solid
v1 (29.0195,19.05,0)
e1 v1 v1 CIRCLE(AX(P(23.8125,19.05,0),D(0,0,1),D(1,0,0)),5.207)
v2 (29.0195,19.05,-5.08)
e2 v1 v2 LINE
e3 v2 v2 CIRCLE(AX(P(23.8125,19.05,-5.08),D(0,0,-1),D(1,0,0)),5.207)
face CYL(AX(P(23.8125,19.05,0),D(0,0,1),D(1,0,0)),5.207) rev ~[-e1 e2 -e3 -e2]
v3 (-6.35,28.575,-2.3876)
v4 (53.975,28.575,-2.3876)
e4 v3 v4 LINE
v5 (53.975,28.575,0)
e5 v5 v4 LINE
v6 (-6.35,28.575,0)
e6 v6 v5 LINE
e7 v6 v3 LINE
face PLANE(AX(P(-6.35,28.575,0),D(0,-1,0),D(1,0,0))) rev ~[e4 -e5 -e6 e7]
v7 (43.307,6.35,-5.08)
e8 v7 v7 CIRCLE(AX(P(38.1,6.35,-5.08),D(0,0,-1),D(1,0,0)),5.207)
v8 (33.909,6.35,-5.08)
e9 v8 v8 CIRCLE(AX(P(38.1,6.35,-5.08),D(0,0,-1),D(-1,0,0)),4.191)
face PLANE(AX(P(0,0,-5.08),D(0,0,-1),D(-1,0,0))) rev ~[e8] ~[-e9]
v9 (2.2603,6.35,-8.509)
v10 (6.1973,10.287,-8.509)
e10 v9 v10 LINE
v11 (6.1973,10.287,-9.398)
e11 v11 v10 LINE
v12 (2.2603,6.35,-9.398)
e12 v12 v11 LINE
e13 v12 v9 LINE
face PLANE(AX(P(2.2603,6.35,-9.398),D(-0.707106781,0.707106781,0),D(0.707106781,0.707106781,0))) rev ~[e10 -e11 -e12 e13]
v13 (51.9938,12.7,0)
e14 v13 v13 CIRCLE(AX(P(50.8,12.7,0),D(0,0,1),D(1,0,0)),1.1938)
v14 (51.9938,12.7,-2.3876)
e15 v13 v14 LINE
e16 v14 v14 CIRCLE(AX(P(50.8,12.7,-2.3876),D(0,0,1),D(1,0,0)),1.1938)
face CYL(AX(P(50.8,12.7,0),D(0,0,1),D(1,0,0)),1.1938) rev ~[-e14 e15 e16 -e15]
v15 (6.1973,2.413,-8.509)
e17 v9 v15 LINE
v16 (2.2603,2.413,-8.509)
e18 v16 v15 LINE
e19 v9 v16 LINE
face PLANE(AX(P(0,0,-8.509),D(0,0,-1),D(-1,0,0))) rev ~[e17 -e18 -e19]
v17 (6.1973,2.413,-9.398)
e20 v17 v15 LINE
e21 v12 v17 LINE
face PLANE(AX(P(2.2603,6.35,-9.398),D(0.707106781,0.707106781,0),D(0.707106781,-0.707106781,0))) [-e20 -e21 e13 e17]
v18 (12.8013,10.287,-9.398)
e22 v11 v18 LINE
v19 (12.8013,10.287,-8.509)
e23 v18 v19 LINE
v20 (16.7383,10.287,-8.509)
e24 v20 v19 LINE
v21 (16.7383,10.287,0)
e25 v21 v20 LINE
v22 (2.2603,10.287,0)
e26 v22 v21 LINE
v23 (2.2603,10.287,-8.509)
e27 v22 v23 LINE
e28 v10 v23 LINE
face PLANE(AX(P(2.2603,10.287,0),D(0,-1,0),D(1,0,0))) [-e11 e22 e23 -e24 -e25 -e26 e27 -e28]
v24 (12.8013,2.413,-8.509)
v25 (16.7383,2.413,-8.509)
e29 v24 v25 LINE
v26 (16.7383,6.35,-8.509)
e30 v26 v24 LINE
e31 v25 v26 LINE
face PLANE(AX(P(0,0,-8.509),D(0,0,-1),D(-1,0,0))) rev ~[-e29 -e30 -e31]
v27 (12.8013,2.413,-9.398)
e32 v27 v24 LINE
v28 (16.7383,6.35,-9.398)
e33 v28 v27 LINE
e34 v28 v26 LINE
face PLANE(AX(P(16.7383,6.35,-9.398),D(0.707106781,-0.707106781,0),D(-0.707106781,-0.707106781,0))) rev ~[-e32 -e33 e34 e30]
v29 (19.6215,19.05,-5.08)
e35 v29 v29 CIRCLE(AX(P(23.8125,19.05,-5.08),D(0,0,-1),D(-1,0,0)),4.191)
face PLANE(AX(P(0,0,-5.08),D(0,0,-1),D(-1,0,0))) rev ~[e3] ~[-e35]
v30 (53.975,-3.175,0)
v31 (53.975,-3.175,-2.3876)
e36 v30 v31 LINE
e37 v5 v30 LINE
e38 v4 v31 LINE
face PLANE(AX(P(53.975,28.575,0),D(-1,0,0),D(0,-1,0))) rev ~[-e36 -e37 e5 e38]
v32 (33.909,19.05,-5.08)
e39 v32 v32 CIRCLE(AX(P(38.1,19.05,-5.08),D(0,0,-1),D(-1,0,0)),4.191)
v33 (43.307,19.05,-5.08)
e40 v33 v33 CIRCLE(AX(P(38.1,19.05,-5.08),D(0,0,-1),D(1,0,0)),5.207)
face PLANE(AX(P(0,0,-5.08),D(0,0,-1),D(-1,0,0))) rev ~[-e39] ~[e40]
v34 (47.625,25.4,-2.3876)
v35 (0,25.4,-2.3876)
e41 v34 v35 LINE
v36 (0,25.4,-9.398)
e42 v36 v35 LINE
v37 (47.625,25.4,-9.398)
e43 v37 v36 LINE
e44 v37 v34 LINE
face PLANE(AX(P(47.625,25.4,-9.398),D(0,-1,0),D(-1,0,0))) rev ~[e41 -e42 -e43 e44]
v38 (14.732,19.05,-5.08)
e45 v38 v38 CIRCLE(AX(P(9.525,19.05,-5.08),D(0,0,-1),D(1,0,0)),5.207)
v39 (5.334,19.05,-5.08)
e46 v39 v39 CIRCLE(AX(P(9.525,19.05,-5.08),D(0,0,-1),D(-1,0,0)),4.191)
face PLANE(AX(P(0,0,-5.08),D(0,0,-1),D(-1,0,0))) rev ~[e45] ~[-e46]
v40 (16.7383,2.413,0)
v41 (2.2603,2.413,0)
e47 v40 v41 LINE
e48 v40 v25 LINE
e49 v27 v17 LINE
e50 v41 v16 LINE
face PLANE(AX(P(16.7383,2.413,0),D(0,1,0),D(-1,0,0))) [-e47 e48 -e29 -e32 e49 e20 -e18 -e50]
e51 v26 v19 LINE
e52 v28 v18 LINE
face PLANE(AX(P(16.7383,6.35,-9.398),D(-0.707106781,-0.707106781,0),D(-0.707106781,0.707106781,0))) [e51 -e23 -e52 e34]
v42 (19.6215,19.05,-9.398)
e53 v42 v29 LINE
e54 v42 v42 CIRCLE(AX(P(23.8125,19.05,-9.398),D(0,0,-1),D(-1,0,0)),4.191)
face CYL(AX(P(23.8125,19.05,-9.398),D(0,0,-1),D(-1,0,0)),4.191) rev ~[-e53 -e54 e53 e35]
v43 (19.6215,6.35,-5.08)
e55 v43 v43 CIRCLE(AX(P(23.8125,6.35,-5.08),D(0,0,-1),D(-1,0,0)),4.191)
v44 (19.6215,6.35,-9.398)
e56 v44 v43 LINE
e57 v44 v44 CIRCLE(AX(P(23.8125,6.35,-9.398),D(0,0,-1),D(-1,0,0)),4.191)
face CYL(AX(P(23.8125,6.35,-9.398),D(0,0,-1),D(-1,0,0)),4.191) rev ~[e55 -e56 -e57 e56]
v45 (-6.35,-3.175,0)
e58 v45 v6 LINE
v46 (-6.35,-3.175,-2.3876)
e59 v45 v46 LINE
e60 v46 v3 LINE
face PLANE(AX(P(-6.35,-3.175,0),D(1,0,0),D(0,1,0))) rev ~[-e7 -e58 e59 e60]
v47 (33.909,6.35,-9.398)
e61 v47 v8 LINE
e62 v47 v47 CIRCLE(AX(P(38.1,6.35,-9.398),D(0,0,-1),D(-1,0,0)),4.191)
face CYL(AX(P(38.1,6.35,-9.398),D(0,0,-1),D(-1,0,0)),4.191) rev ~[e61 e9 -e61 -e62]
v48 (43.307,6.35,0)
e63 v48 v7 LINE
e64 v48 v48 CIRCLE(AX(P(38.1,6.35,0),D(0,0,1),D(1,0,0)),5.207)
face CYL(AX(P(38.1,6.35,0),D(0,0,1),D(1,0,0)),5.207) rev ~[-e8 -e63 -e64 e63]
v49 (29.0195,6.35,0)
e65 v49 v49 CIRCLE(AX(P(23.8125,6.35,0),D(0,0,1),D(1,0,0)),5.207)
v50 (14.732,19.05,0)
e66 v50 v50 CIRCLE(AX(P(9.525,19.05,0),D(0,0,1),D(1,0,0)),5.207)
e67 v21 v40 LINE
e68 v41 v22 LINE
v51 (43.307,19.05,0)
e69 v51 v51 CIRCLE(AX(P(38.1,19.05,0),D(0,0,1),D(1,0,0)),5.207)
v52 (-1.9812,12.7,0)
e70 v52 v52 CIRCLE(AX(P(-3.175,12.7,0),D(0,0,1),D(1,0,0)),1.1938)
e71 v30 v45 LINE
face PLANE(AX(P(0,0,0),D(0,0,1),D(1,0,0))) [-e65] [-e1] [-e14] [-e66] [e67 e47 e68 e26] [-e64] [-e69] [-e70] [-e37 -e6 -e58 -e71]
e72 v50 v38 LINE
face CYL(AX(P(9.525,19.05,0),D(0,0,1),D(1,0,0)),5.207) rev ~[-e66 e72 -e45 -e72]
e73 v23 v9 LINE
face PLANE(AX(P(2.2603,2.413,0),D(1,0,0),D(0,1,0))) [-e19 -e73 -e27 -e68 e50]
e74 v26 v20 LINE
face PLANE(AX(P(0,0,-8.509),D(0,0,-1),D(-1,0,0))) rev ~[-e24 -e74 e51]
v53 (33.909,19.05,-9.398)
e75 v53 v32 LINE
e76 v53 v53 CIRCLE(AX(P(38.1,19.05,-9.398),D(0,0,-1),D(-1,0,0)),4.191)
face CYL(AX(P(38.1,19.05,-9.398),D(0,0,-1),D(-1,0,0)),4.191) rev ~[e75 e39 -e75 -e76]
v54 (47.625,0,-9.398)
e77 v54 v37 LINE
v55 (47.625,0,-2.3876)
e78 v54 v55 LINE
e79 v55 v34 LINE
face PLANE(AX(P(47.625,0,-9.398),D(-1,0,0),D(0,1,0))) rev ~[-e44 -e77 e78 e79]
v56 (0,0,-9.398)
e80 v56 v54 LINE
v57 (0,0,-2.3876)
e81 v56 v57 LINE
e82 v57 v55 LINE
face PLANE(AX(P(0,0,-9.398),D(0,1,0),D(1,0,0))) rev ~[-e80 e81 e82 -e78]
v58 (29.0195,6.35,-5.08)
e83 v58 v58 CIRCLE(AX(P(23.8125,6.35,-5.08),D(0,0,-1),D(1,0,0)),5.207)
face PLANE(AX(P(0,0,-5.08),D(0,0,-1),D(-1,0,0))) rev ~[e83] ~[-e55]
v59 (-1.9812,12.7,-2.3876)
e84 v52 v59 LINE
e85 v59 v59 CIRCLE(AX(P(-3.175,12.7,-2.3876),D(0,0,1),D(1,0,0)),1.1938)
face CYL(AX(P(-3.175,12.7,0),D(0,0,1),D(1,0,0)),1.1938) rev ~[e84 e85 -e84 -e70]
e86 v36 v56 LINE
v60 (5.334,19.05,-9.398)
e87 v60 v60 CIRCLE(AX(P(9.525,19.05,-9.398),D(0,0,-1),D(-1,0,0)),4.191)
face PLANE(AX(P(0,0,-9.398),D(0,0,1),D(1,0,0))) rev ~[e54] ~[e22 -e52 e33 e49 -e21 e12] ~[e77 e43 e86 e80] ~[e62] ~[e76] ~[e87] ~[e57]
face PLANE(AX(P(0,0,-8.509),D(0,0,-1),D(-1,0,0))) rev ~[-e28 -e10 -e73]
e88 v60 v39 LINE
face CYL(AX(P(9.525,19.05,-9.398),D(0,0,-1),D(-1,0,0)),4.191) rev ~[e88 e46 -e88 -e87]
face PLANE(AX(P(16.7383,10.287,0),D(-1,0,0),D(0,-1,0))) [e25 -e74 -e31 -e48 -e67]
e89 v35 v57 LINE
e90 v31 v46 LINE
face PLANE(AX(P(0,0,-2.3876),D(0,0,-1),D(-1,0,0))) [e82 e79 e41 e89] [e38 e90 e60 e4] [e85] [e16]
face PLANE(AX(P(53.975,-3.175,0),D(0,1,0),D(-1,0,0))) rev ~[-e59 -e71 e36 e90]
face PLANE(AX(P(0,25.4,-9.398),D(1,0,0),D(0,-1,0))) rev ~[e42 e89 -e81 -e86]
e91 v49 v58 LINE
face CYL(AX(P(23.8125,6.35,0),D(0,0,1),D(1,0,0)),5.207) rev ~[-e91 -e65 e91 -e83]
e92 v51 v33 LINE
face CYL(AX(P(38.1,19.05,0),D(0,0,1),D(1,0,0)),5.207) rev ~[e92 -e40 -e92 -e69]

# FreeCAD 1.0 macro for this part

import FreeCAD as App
import Part
import Sketcher

V = App.Vector
Q = App.Units.Quantity

doc = App.newDocument("Part")
params = doc.addObject("Spreadsheet::Sheet", "Params")
for row, (alias, value) in enumerate([
    ("sketch1_diameter", "0.41 in"),
    ("sketch1_width", "0.57 in"),
    ("sketch1_height", "1.25 in"),
    ("sketch1_height2", "0.31 in"),
    ("sketch1_width2", "2.375 in"),
    ("pad1_length", "0.37 in"),
    ("sketch2_height", "1 in"),
    ("sketch2_height2", "1.25 in"),
    ("sketch2_width", "2.375 in"),
    ("sketch2_width2", "1.875 in"),
    ("pocket1_length", "0.276 in"),
    ("sketch3_diameter", "0.33 in"),
    ("sketch3_diameter2", "0.41 in"),
    ("pad2_length", "0.17 in"),
    ("sketch4_width", "0.155 in"),
    ("pad3_length", "0.035 in"),
    ("sketch5_diameter", "0.094 in"),
    ("pocket2_length", "0.094 in"),
], start=1):
    params.set(f"A{row}", alias)
    params.set(f"B{row}", "=" + value)
    params.setAlias(f"B{row}", alias)

body = doc.addObject("PartDesign::Body", "Body")

# Sketch on XY plane
sketch1 = body.newObject("Sketcher::SketchObject", "Sketch")
sketch1.AttachmentSupport = (doc.getObject("XY_Plane"), [""])
sketch1.MapMode = "FlatFace"
sketch1.addGeometry([
    Part.LineSegment(V(54, 29, 0), V(-6, 29, 0)),  # 0
    Part.LineSegment(V(-6, 29, 0), V(-6, -3, 0)),  # 1
    Part.LineSegment(V(-6, -3, 0), V(54, -3, 0)),  # 2
    Part.LineSegment(V(54, -3, 0), V(54, 29, 0)),  # 3
    Part.LineSegment(V(2, 2, 0), V(2, 10, 0)),  # 4
    Part.LineSegment(V(2, 10, 0), V(17, 10, 0)),  # 5
    Part.LineSegment(V(17, 10, 0), V(17, 2, 0)),  # 6
    Part.LineSegment(V(17, 2, 0), V(2, 2, 0)),  # 7
    Part.Circle(V(24, 6, 0), V(0, 0, 1), 5),  # 8
    Part.Circle(V(38, 6, 0), V(0, 0, 1), 5),  # 9
    Part.Circle(V(10, 19, 0), V(0, 0, 1), 5),  # 10
    Part.Circle(V(24, 19, 0), V(0, 0, 1), 5),  # 11
    Part.Circle(V(38, 19, 0), V(0, 0, 1), 5),  # 12
], False)
sketch1.addConstraint([
    Sketcher.Constraint("Coincident", 0, 2, 1, 1),
    Sketcher.Constraint("Coincident", 1, 2, 2, 1),
    Sketcher.Constraint("Coincident", 2, 2, 3, 1),
    Sketcher.Constraint("Coincident", 3, 2, 0, 1),
    Sketcher.Constraint("Coincident", 4, 2, 5, 1),
    Sketcher.Constraint("Coincident", 5, 2, 6, 1),
    Sketcher.Constraint("Coincident", 6, 2, 7, 1),
    Sketcher.Constraint("Coincident", 7, 2, 4, 1),
    Sketcher.Constraint("Horizontal", 0),
    Sketcher.Constraint("Vertical", 1),
    Sketcher.Constraint("Horizontal", 2),
    Sketcher.Constraint("Vertical", 3),
    Sketcher.Constraint("Vertical", 4),
    Sketcher.Constraint("Horizontal", 5),
    Sketcher.Constraint("Vertical", 6),
    Sketcher.Constraint("Horizontal", 7),
    Sketcher.Constraint("Equal", 8, 9),
    Sketcher.Constraint("Equal", 9, 10),
    Sketcher.Constraint("Equal", 10, 11),
    Sketcher.Constraint("Equal", 11, 12),
    Sketcher.Constraint("Horizontal", 8, 3, 9, 3),
    Sketcher.Constraint("Horizontal", 10, 3, 11, 3),
    Sketcher.Constraint("Horizontal", 11, 3, 12, 3),
    Sketcher.Constraint("Vertical", 8, 3, 11, 3),
    Sketcher.Constraint("Vertical", 9, 3, 12, 3),
    Sketcher.Constraint("Diameter", 8, Q("0.41 in")),
    Sketcher.Constraint("DistanceX", 5, 1, 5, 2, Q("0.57 in")),
    Sketcher.Constraint("DistanceY", 1, 2, 1, 1, Q("1.25 in")),
    Sketcher.Constraint("DistanceY", 4, 1, 4, 2, Q("0.31 in")),
    Sketcher.Constraint("DistanceX", 0, 2, 0, 1, Q("2.375 in")),
    Sketcher.Constraint("DistanceX", -1, 1, 9, 3, Q("1.5 in")),
    Sketcher.Constraint("DistanceY", 8, 3, 10, 3, Q("0.5 in")),
    Sketcher.Constraint("DistanceY", -1, 1, 8, 3, Q("0.25 in")),
    Sketcher.Constraint("DistanceX", 0, 2, -1, 1, Q("0.25 in")),
    Sketcher.Constraint("DistanceX", 10, 3, 2, 2, Q("1.75 in")),
    Sketcher.Constraint("DistanceY", 1, 2, 4, 2, Q("0.53 in")),
    Sketcher.Constraint("DistanceX", -1, 1, 8, 3, Q("0.9375 in")),
    Sketcher.Constraint("DistanceY", -1, 1, 0, 2, Q("1.125 in")),
    Sketcher.Constraint("DistanceX", -1, 1, 4, 2, Q("0.089 in")),
])
sketch1.setExpression("Constraints[25]", "Params.sketch1_diameter")
sketch1.setExpression("Constraints[26]", "Params.sketch1_width")
sketch1.setExpression("Constraints[27]", "Params.sketch1_height")
sketch1.setExpression("Constraints[28]", "Params.sketch1_height2")
sketch1.setExpression("Constraints[29]", "Params.sketch1_width2")
pad1 = body.newObject("PartDesign::Pad", "Pad")
pad1.Profile = sketch1
pad1.setExpression("Length", "Params.pad1_length")
pad1.Reversed = True

# Sketch on XY plane
sketch2 = body.newObject("Sketcher::SketchObject", "Sketch001")
sketch2.AttachmentSupport = (doc.getObject("XY_Plane"), [""])
sketch2.MapMode = "FlatFace"
sketch2.AttachmentOffset = App.Placement(V(0, 0, -0.37 * 25.4), App.Rotation())
sketch2.addGeometry([
    Part.LineSegment(V(-6, -3, 0), V(-6, 29, 0)),  # 0
    Part.LineSegment(V(-6, 29, 0), V(54, 29, 0)),  # 1
    Part.LineSegment(V(54, 29, 0), V(54, -3, 0)),  # 2
    Part.LineSegment(V(54, -3, 0), V(-6, -3, 0)),  # 3
    Part.LineSegment(V(48, 0, 0), V(48, 25, 0)),  # 4
    Part.LineSegment(V(48, 25, 0), V(0, 25, 0)),  # 5
    Part.LineSegment(V(0, 25, 0), V(0, 0, 0)),  # 6
    Part.LineSegment(V(0, 0, 0), V(48, 0, 0)),  # 7
], False)
sketch2.addConstraint([
    Sketcher.Constraint("Coincident", 0, 2, 1, 1),
    Sketcher.Constraint("Coincident", 1, 2, 2, 1),
    Sketcher.Constraint("Coincident", 2, 2, 3, 1),
    Sketcher.Constraint("Coincident", 3, 2, 0, 1),
    Sketcher.Constraint("Coincident", 4, 2, 5, 1),
    Sketcher.Constraint("Coincident", 5, 2, 6, 1),
    Sketcher.Constraint("Coincident", 6, 2, 7, 1),
    Sketcher.Constraint("Coincident", 7, 2, 4, 1),
    Sketcher.Constraint("Vertical", 0),
    Sketcher.Constraint("Horizontal", 1),
    Sketcher.Constraint("Vertical", 2),
    Sketcher.Constraint("Horizontal", 3),
    Sketcher.Constraint("Vertical", 4),
    Sketcher.Constraint("Horizontal", 5),
    Sketcher.Constraint("Vertical", 6),
    Sketcher.Constraint("Horizontal", 7),
    Sketcher.Constraint("Coincident", 6, 2, -1, 1),
    Sketcher.Constraint("DistanceY", 4, 1, 4, 2, Q("1 in")),
    Sketcher.Constraint("DistanceY", 0, 1, 0, 2, Q("1.25 in")),
    Sketcher.Constraint("DistanceX", 1, 1, 1, 2, Q("2.375 in")),
    Sketcher.Constraint("DistanceX", 5, 2, 5, 1, Q("1.875 in")),
    Sketcher.Constraint("DistanceX", 0, 2, -1, 1, Q("0.25 in")),
    Sketcher.Constraint("DistanceY", -1, 1, 0, 2, Q("1.125 in")),
])
sketch2.setExpression("Constraints[17]", "Params.sketch2_height")
sketch2.setExpression("Constraints[18]", "Params.sketch2_height2")
sketch2.setExpression("Constraints[19]", "Params.sketch2_width")
sketch2.setExpression("Constraints[20]", "Params.sketch2_width2")
pocket1 = body.newObject("PartDesign::Pocket", "Pocket")
pocket1.Profile = sketch2
pocket1.setExpression("Length", "Params.pocket1_length")
pocket1.Reversed = True

# Sketch on XY plane
sketch3 = body.newObject("Sketcher::SketchObject", "Sketch002")
sketch3.AttachmentSupport = (doc.getObject("XY_Plane"), [""])
sketch3.MapMode = "FlatFace"
sketch3.AttachmentOffset = App.Placement(V(0, 0, -0.37 * 25.4), App.Rotation())
sketch3.addGeometry([
    Part.Circle(V(9.5, 19.1, 0), V(0, 0, 1), 5.2),  # 0
    Part.Circle(V(9.5, 19.1, 0), V(0, 0, 1), 4.2),  # 1
    Part.Circle(V(38.1, 19.1, 0), V(0, 0, 1), 5.2),  # 2
    Part.Circle(V(38.1, 19.1, 0), V(0, 0, 1), 4.2),  # 3
    Part.Circle(V(23.8, 19.1, 0), V(0, 0, 1), 5.2),  # 4
    Part.Circle(V(23.8, 19.1, 0), V(0, 0, 1), 4.2),  # 5
    Part.Circle(V(23.8, 6.3, 0), V(0, 0, 1), 5.2),  # 6
    Part.Circle(V(23.8, 6.3, 0), V(0, 0, 1), 4.2),  # 7
    Part.Circle(V(38.1, 6.3, 0), V(0, 0, 1), 5.2),  # 8
    Part.Circle(V(38.1, 6.3, 0), V(0, 0, 1), 4.2),  # 9
], False)
sketch3.addConstraint([
    Sketcher.Constraint("Coincident", 1, 3, 0, 3),
    Sketcher.Constraint("Coincident", 3, 3, 2, 3),
    Sketcher.Constraint("Coincident", 5, 3, 4, 3),
    Sketcher.Constraint("Coincident", 7, 3, 6, 3),
    Sketcher.Constraint("Coincident", 9, 3, 8, 3),
    Sketcher.Constraint("Equal", 0, 2),
    Sketcher.Constraint("Equal", 1, 3),
    Sketcher.Constraint("Equal", 2, 4),
    Sketcher.Constraint("Equal", 3, 5),
    Sketcher.Constraint("Equal", 4, 6),
    Sketcher.Constraint("Equal", 5, 7),
    Sketcher.Constraint("Equal", 6, 8),
    Sketcher.Constraint("Equal", 7, 9),
    Sketcher.Constraint("Horizontal", 1, 3, 2, 3),
    Sketcher.Constraint("Horizontal", 3, 3, 4, 3),
    Sketcher.Constraint("Horizontal", 7, 3, 8, 3),
    Sketcher.Constraint("Vertical", 5, 3, 6, 3),
    Sketcher.Constraint("Vertical", 3, 3, 8, 3),
    Sketcher.Constraint("Diameter", 1, Q("0.33 in")),
    Sketcher.Constraint("Diameter", 0, Q("0.41 in")),
    Sketcher.Constraint("DistanceX", -1, 1, 2, 3, Q("1.5 in")),
    Sketcher.Constraint("DistanceY", 6, 3, 4, 3, Q("0.5 in")),
    Sketcher.Constraint("DistanceY", -1, 1, 0, 3, Q("0.75 in")),
    Sketcher.Constraint("DistanceX", -1, 1, 0, 3, Q("0.375 in")),
    Sketcher.Constraint("DistanceX", -1, 1, 4, 3, Q("0.9375 in")),
])
sketch3.setExpression("Constraints[18]", "Params.sketch3_diameter")
sketch3.setExpression("Constraints[19]", "Params.sketch3_diameter2")
pad2 = body.newObject("PartDesign::Pad", "Pad001")
pad2.Profile = sketch3
pad2.setExpression("Length", "Params.pad2_length")

# Sketch on XY plane
sketch4 = body.newObject("Sketcher::SketchObject", "Sketch003")
sketch4.AttachmentSupport = (doc.getObject("XY_Plane"), [""])
sketch4.MapMode = "FlatFace"
sketch4.AttachmentOffset = App.Placement(V(0, 0, -0.37 * 25.4), App.Rotation())
sketch4.addGeometry([
    Part.LineSegment(V(2.3, 6.3, 0), V(2.3, 10.3, 0)),  # 0
    Part.LineSegment(V(2.3, 10.3, 0), V(6.2, 10.3, 0)),  # 1
    Part.LineSegment(V(6.2, 10.3, 0), V(2.3, 6.3, 0)),  # 2
    Part.LineSegment(V(2.3, 2.4, 0), V(2.3, 6.3, 0)),  # 3
    Part.LineSegment(V(2.3, 6.3, 0), V(6.2, 2.4, 0)),  # 4
    Part.LineSegment(V(6.2, 2.4, 0), V(2.3, 2.4, 0)),  # 5
    Part.LineSegment(V(16.7, 6.3, 0), V(12.8, 10.3, 0)),  # 6
    Part.LineSegment(V(12.8, 10.3, 0), V(16.7, 10.3, 0)),  # 7
    Part.LineSegment(V(16.7, 10.3, 0), V(16.7, 6.3, 0)),  # 8
    Part.LineSegment(V(16.7, 2.4, 0), V(12.8, 2.4, 0)),  # 9
    Part.LineSegment(V(12.8, 2.4, 0), V(16.7, 6.3, 0)),  # 10
    Part.LineSegment(V(16.7, 6.3, 0), V(16.7, 2.4, 0)),  # 11
], False)
sketch4.addConstraint([
    Sketcher.Constraint("Coincident", 0, 2, 1, 1),
    Sketcher.Constraint("Coincident", 1, 2, 2, 1),
    Sketcher.Constraint("Coincident", 2, 2, 0, 1),
    Sketcher.Constraint("Coincident", 3, 2, 4, 1),
    Sketcher.Constraint("Coincident", 4, 2, 5, 1),
    Sketcher.Constraint("Coincident", 5, 2, 3, 1),
    Sketcher.Constraint("Coincident", 6, 2, 7, 1),
    Sketcher.Constraint("Coincident", 7, 2, 8, 1),
    Sketcher.Constraint("Coincident", 8, 2, 6, 1),
    Sketcher.Constraint("Coincident", 9, 2, 10, 1),
    Sketcher.Constraint("Coincident", 10, 2, 11, 1),
    Sketcher.Constraint("Coincident", 11, 2, 9, 1),
    Sketcher.Constraint("Vertical", 0),
    Sketcher.Constraint("Horizontal", 1),
    Sketcher.Constraint("Vertical", 3),
    Sketcher.Constraint("Horizontal", 5),
    Sketcher.Constraint("Horizontal", 7),
    Sketcher.Constraint("Vertical", 8),
    Sketcher.Constraint("Horizontal", 9),
    Sketcher.Constraint("Vertical", 11),
    Sketcher.Constraint("Coincident", 3, 2, 2, 2),
    Sketcher.Constraint("Coincident", 10, 2, 8, 2),
    Sketcher.Constraint("Perpendicular", 2, 4),
    Sketcher.Constraint("Parallel", 4, 6),
    Sketcher.Constraint("Perpendicular", 6, 10),
    Sketcher.Constraint("Horizontal", 1, 2, 6, 2),
    Sketcher.Constraint("Horizontal", 3, 2, 8, 2),
    Sketcher.Constraint("Horizontal", 5, 2, 9, 2),
    Sketcher.Constraint("Vertical", 1, 2, 4, 2),
    Sketcher.Constraint("Vertical", 6, 2, 9, 2),
    Sketcher.Constraint("DistanceX", 1, 1, 1, 2, Q("0.155 in")),
    Sketcher.Constraint("DistanceY", -1, 1, 2, 2, Q("0.25 in")),
    Sketcher.Constraint("DistanceX", 1, 2, 6, 2, Q("0.26 in")),
    Sketcher.Constraint("DistanceX", -1, 1, 0, 2, Q("0.089 in")),
])
sketch4.setExpression("Constraints[30]", "Params.sketch4_width")
pad3 = body.newObject("PartDesign::Pad", "Pad002")
pad3.Profile = sketch4
pad3.setExpression("Length", "Params.pad3_length")

# Sketch on XY plane
sketch5 = body.newObject("Sketcher::SketchObject", "Sketch004")
sketch5.AttachmentSupport = (doc.getObject("XY_Plane"), [""])
sketch5.MapMode = "FlatFace"
sketch5.addGeometry([
    Part.Circle(V(-3.2, 12.7, 0), V(0, 0, 1), 1.2),
    Part.Circle(V(50.8, 12.7, 0), V(0, 0, 1), 1.2),
], False)
sketch5.addConstraint([
    Sketcher.Constraint("Equal", 0, 1),
    Sketcher.Constraint("Horizontal", 0, 3, 1, 3),
    Sketcher.Constraint("Diameter", 0, Q("0.094 in")),
    Sketcher.Constraint("DistanceX", -1, 1, 1, 3, Q("2 in")),
    Sketcher.Constraint("DistanceY", -1, 1, 0, 3, Q("0.5 in")),
    Sketcher.Constraint("DistanceX", 0, 3, -1, 1, Q("0.125 in")),
])
sketch5.setExpression("Constraints[2]", "Params.sketch5_diameter")
pocket2 = body.newObject("PartDesign::Pocket", "Pocket001")
pocket2.Profile = sketch5
pocket2.setExpression("Length", "Params.pocket2_length")

doc.recompute()
